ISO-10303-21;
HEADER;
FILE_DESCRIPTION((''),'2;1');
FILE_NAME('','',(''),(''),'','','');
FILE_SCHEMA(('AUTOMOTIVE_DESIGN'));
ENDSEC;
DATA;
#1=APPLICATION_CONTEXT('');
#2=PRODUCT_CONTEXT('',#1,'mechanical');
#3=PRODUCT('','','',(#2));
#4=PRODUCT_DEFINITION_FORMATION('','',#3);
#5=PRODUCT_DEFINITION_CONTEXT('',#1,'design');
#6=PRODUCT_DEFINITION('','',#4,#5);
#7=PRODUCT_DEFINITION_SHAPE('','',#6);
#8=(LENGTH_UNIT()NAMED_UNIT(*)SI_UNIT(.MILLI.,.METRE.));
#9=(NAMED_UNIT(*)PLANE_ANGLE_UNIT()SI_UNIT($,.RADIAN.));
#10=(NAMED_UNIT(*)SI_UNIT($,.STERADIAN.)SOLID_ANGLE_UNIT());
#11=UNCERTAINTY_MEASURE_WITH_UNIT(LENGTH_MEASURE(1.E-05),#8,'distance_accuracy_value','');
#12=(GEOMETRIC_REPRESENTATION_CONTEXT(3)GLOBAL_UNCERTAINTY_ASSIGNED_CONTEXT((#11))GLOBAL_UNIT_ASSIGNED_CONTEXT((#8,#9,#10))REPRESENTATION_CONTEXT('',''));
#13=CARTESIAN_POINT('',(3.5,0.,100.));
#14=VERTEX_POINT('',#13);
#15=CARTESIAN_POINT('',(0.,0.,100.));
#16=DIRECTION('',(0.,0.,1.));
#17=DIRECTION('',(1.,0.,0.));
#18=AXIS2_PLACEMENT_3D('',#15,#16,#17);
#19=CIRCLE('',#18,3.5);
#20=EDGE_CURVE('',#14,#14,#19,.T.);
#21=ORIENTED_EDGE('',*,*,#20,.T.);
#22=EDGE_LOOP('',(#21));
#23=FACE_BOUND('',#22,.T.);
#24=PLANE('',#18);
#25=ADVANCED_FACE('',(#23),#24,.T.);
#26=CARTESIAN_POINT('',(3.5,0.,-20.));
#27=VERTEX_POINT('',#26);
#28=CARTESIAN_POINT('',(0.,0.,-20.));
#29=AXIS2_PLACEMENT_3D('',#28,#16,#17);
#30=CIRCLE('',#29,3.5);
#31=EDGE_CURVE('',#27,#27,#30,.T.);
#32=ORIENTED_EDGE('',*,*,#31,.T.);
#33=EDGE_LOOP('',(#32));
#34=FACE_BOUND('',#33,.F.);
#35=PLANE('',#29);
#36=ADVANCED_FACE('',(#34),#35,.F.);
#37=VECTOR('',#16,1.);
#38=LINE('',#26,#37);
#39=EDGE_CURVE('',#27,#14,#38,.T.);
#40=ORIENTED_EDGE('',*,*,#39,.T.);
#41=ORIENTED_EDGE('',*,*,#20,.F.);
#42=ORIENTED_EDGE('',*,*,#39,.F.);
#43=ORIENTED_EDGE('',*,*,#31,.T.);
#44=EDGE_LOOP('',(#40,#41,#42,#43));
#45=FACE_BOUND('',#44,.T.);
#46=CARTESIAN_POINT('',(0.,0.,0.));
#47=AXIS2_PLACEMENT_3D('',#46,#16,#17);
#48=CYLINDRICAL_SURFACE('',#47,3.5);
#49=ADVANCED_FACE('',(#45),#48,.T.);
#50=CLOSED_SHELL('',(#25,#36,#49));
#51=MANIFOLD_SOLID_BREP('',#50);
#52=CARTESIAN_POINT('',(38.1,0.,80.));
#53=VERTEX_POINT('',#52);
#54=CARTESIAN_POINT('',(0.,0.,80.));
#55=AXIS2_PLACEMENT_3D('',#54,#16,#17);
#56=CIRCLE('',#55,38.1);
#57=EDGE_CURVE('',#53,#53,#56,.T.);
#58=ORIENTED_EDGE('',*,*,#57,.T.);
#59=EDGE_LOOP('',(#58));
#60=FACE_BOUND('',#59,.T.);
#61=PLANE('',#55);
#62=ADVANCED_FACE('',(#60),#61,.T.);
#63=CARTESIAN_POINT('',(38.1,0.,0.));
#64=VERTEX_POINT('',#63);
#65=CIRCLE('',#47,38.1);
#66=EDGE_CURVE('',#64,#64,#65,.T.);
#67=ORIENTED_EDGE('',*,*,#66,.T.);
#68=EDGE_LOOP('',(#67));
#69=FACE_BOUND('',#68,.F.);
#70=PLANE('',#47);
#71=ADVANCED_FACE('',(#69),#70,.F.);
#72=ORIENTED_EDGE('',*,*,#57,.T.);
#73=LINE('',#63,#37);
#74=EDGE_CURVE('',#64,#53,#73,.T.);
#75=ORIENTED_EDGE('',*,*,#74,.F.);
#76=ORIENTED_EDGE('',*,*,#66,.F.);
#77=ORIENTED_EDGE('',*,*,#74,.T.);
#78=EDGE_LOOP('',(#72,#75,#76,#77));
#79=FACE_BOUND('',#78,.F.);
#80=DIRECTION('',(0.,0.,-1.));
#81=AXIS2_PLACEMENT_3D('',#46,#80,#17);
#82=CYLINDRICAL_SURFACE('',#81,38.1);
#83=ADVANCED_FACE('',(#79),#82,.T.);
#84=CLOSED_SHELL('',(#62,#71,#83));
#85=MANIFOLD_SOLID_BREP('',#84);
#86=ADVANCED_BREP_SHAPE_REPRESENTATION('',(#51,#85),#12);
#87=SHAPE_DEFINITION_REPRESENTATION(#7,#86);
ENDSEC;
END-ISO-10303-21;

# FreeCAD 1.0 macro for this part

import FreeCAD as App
import Part
import Sketcher
Q = App.Units.Quantity

doc = App.newDocument("Part")
body = doc.addObject("PartDesign::Body", "Body")

# Sketch on XY plane
sketch1 = body.newObject("Sketcher::SketchObject", "Sketch")
sketch1.AttachmentSupport = (doc.getObject("XY_Plane"), [""])
sketch1.MapMode = "FlatFace"
sketch1.addGeometry(Part.Circle(App.Vector(0, 0, 0), App.Vector(0, 0, 1), 38.1), False)
sketch1.addConstraint(Sketcher.Constraint("Coincident", 0, 3, -1, 1))
sketch1.addConstraint(Sketcher.Constraint("Diameter", 0, Q("76.2 mm")))
pad1 = body.newObject("PartDesign::Pad", "Pad")
pad1.Profile = sketch1
pad1.Length = 80
body2 = doc.addObject("PartDesign::Body", "Body001")

# Sketch on XY plane
sketch2 = body2.newObject("Sketcher::SketchObject", "Sketch001")
sketch2.AttachmentSupport = (doc.getObject("XY_Plane001"), [""])
sketch2.MapMode = "FlatFace"
sketch2.addGeometry(Part.Circle(App.Vector(0, 0, 0), App.Vector(0, 0, 1), 3.5), False)
sketch2.addConstraint(Sketcher.Constraint("Coincident", 0, 3, -1, 1))
sketch2.addConstraint(Sketcher.Constraint("Diameter", 0, Q("7 mm")))
pad2 = body2.newObject("PartDesign::Pad", "Pad001")
pad2.Profile = sketch2
pad2.Type = "TwoLengths"
pad2.Length = 100
pad2.Length2 = 20

doc.recompute()
